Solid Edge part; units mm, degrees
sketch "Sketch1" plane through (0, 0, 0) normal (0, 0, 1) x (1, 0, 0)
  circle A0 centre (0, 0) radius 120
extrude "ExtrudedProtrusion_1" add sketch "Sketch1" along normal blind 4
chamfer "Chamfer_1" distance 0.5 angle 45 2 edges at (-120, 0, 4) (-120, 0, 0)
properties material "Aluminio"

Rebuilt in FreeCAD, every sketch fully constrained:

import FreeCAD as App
import Part
import Sketcher
Q = App.Units.Quantity


def edges_at(feature, points):
    """Names of the edges that pass closest to the given points."""
    edges = feature.Shape.Edges
    near = lambda p: min(range(len(edges)), key=lambda i: edges[i].distToShape(Part.Vertex(*p))[0])
    return sorted({f"Edge{near(p) + 1}" for p in points})

doc = App.newDocument("Part")
params = doc.addObject("Spreadsheet::Sheet", "Params")
for row, (alias, value) in enumerate([
    ("sketch1_diameter", "240 mm"),
    ("pad1_length", "4 mm"),
    ("chamfer_size", "0.5 mm"),
], start=1):
    params.set(f"A{row}", alias)
    params.set(f"B{row}", "=" + value)
    params.setAlias(f"B{row}", alias)

body = doc.addObject("PartDesign::Body", "Body")

sketch1 = doc.addObject("Sketcher::SketchObject", "Sketch")
body.addObject(sketch1)
sketch1.AttachmentSupport = (doc.XY_Plane, [""])
sketch1.MapMode = "FlatFace"
sketch1.addGeometry(Part.Circle(App.Vector(0, 0, 0), App.Vector(0, 0, 1), 120), False)
sketch1.addConstraint([
    Sketcher.Constraint("Coincident", 0, 3, -1, 1),
    Sketcher.Constraint("Diameter", 0, Q("240 mm")),
])
sketch1.setExpression("Constraints[1]", "Params.sketch1_diameter")
pad1 = doc.addObject("PartDesign::Pad", "Pad")
body.addObject(pad1)
pad1.Profile = sketch1
pad1.setExpression("Length", "Params.pad1_length")
doc.recompute()

chamfer = doc.addObject("PartDesign::Chamfer", "Chamfer")
body.addObject(chamfer)
chamfer.Base = (pad1, edges_at(pad1, [(-120, 0, 4), (-120, 0, 0)]))
chamfer.setExpression("Size", "Params.chamfer_size")

doc.recompute()
